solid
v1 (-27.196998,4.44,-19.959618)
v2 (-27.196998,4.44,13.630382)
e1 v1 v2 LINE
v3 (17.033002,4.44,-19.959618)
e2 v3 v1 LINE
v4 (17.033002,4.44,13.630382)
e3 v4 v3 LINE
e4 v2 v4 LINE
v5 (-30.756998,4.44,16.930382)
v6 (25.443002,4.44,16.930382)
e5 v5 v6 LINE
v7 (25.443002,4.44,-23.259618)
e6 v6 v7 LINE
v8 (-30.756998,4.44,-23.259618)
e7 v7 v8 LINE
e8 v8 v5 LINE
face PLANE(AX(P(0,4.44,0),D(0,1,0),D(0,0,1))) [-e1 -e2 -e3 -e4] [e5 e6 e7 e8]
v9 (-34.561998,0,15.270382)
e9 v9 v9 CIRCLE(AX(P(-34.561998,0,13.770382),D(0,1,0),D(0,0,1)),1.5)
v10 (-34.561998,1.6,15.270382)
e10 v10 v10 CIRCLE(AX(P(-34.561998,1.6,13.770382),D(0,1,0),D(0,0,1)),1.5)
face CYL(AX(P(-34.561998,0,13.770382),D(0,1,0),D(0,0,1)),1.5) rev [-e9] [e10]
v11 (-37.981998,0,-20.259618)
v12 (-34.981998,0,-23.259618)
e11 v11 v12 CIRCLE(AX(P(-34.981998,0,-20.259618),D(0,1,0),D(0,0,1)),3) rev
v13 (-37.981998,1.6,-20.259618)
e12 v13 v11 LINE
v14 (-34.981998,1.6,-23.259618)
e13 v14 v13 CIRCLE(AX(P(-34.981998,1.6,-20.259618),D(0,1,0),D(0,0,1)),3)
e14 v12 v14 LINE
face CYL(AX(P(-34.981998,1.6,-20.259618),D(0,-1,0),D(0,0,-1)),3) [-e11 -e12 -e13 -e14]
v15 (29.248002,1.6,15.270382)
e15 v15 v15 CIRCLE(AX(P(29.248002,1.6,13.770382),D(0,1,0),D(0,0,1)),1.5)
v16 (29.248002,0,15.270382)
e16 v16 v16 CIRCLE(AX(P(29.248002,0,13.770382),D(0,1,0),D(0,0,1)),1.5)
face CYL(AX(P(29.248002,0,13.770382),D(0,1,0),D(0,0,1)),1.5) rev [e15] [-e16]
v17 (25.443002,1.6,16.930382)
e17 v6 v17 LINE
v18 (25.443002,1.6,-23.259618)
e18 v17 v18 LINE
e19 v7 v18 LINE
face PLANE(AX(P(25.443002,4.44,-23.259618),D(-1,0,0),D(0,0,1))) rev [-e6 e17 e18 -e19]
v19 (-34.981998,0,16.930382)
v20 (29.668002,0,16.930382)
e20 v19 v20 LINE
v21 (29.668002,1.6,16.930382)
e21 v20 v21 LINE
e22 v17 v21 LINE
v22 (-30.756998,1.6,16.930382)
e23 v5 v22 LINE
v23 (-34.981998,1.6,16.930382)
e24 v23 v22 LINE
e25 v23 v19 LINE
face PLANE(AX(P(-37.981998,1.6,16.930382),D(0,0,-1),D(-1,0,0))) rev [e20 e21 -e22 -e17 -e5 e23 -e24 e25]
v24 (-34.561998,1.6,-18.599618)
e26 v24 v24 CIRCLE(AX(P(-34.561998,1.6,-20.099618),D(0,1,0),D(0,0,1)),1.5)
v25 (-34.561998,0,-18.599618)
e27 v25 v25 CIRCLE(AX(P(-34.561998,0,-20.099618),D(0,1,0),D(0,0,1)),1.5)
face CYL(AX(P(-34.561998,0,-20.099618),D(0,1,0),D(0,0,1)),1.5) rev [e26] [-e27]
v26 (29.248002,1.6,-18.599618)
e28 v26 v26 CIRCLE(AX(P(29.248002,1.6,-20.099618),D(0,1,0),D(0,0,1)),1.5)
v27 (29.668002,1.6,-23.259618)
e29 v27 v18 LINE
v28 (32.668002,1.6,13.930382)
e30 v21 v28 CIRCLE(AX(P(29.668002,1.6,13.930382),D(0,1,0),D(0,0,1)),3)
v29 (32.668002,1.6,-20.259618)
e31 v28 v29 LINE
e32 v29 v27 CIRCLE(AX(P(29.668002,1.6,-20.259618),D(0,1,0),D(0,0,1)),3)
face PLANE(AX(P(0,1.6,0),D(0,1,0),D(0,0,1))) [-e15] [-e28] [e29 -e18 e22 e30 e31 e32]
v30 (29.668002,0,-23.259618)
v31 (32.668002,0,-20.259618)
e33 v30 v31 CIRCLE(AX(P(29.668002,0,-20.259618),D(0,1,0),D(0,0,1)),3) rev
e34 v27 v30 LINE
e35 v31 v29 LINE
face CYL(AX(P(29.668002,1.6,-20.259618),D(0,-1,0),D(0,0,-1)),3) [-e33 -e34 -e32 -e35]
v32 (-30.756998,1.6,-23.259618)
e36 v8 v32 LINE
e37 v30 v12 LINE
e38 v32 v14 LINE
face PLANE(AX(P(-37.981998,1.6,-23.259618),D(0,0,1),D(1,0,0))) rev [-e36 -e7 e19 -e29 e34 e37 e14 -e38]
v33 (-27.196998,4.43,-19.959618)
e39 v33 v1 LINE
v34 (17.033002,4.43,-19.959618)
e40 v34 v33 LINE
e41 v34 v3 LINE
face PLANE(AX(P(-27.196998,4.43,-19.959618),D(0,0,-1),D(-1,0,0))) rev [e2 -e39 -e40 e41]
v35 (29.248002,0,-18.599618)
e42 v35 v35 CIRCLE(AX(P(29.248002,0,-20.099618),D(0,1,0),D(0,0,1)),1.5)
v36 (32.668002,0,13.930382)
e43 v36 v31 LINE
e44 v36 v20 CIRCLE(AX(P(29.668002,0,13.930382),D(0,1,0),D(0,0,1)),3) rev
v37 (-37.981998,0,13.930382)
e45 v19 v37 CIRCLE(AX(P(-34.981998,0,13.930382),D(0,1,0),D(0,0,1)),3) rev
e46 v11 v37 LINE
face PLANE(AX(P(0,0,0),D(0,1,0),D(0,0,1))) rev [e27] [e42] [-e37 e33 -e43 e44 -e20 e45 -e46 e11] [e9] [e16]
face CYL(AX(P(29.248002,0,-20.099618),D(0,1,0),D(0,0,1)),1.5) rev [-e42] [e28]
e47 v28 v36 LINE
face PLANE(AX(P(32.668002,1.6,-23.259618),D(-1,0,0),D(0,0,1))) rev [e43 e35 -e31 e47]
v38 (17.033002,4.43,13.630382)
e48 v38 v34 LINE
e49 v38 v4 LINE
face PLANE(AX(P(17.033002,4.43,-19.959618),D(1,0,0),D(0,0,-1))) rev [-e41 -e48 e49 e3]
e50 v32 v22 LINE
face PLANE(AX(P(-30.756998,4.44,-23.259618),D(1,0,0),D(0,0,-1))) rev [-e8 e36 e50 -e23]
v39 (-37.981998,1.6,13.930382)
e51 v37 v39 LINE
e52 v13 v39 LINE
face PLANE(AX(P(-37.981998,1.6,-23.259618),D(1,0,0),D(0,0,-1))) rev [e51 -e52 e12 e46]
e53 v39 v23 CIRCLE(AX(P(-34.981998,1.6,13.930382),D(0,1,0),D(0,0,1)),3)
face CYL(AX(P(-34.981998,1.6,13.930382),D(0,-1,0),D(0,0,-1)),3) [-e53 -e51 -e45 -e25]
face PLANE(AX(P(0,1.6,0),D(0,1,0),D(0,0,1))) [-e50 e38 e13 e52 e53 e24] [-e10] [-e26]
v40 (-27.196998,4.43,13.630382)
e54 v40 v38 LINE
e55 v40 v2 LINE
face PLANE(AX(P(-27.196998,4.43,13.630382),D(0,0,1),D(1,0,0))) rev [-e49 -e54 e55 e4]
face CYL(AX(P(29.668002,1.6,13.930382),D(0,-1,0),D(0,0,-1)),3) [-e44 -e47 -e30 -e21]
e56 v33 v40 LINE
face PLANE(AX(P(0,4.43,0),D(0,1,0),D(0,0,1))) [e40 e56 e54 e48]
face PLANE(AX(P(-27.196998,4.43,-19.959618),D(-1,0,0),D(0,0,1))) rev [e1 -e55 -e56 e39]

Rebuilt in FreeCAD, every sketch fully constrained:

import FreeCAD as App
import Part
import Sketcher

V = App.Vector
Q = App.Units.Quantity


def edges_at(feature, points):
    """Names of the edges that pass closest to the given points."""
    edges = feature.Shape.Edges
    near = lambda p: min(range(len(edges)), key=lambda i: edges[i].distToShape(Part.Vertex(*p))[0])
    return sorted({f"Edge{near(p) + 1}" for p in points})


def add_polygon(sketch, points):
    """Adds a closed chain of lines whose ends are joined by coincident constraints."""
    first, n = sketch.GeometryCount, len(points)
    for a, b in zip(points, points[1:] + points[:1]):
        sketch.addGeometry(Part.LineSegment(App.Vector(*a, 0), App.Vector(*b, 0)), False)
    for i in range(n):
        sketch.addConstraint(Sketcher.Constraint("Coincident", first + i, 2, first + (i + 1) % n, 1))

doc = App.newDocument("Part")
body = doc.addObject("PartDesign::Body", "Body")

sketch1 = body.newObject("Sketcher::SketchObject", "Sketch")
sketch1.AttachmentSupport = (doc.getObject("XZ_Plane"), [""])
sketch1.MapMode = "FlatFace"
add_polygon(sketch1, [(-38, -23), (-38, 17), (33, 17), (33, -23)])
sketch1.addConstraint([
    Sketcher.Constraint("Vertical", 0),
    Sketcher.Constraint("Horizontal", 1),
    Sketcher.Constraint("Vertical", 2),
    Sketcher.Constraint("Horizontal", 3),
    Sketcher.Constraint("DistanceX", 1, 1, 1, 2, Q("70.65 mm")),
    Sketcher.Constraint("DistanceY", 0, 1, 0, 2, Q("40.19 mm")),
    Sketcher.Constraint("DistanceX", 0, 2, -1, 1, Q("37.981998 mm")),
    Sketcher.Constraint("DistanceY", -1, 1, 0, 2, Q("16.930382 mm")),
])
pad1 = body.newObject("PartDesign::Pad", "Pad")
pad1.Profile = sketch1
pad1.Length = 1.6
pad1.Reversed = True
doc.recompute()

fillet = body.newObject("PartDesign::Fillet", "Fillet")
fillet.Base = (pad1, edges_at(pad1, [
    (-37.982, 0.8, -23.26),
    (32.668, 0.8, -23.26),
    (32.668, 0.8, 16.93),
    (-37.982, 0.8, 16.93),
]))
fillet.Radius = 3

sketch2 = body.newObject("Sketcher::SketchObject", "Sketch001")
sketch2.AttachmentSupport = (doc.getObject("XZ_Plane"), [""])
sketch2.MapMode = "FlatFace"
sketch2.AttachmentOffset = App.Placement(V(0, 0, -1.6), App.Rotation())
sketch2.addGeometry([
    Part.Circle(V(-34.6, -20.1, 0), V(0, 0, 1), 1.5),
    Part.Circle(V(29.2, -20.1, 0), V(0, 0, 1), 1.5),
    Part.Circle(V(-34.6, 13.8, 0), V(0, 0, 1), 1.5),
    Part.Circle(V(29.2, 13.8, 0), V(0, 0, 1), 1.5),
], False)
sketch2.addConstraint([
    Sketcher.Constraint("Equal", 0, 1),
    Sketcher.Constraint("Equal", 1, 2),
    Sketcher.Constraint("Equal", 2, 3),
    Sketcher.Constraint("Horizontal", 0, 3, 1, 3),
    Sketcher.Constraint("Horizontal", 2, 3, 3, 3),
    Sketcher.Constraint("Vertical", 0, 3, 2, 3),
    Sketcher.Constraint("Vertical", 1, 3, 3, 3),
    Sketcher.Constraint("Diameter", 0, Q("3 mm")),
    Sketcher.Constraint("DistanceX", 0, 3, 1, 3, Q("63.81 mm")),
    Sketcher.Constraint("DistanceY", 0, 3, 2, 3, Q("33.87 mm")),
    Sketcher.Constraint("DistanceX", 0, 3, -1, 1, Q("34.561998 mm")),
    Sketcher.Constraint("DistanceY", 0, 3, -1, 1, Q("20.099618 mm")),
])
pocket1 = body.newObject("PartDesign::Pocket", "Pocket")
pocket1.Profile = sketch2
pocket1.Length = 1.6
pocket1.Reversed = True

sketch3 = body.newObject("Sketcher::SketchObject", "Sketch002")
sketch3.AttachmentSupport = (doc.getObject("XZ_Plane"), [""])
sketch3.MapMode = "FlatFace"
sketch3.AttachmentOffset = App.Placement(V(0, 0, -1.6), App.Rotation())
add_polygon(sketch3, [(-31, -23), (-31, 17), (25, 17), (25, -23)])
sketch3.addConstraint([
    Sketcher.Constraint("Vertical", 0),
    Sketcher.Constraint("Horizontal", 1),
    Sketcher.Constraint("Vertical", 2),
    Sketcher.Constraint("Horizontal", 3),
    Sketcher.Constraint("DistanceX", 1, 1, 1, 2, Q("56.2 mm")),
    Sketcher.Constraint("DistanceY", 0, 1, 0, 2, Q("40.19 mm")),
    Sketcher.Constraint("DistanceX", 0, 2, -1, 1, Q("30.756998 mm")),
    Sketcher.Constraint("DistanceY", -1, 1, 0, 2, Q("16.930382 mm")),
])
pad2 = body.newObject("PartDesign::Pad", "Pad001")
pad2.Profile = sketch3
pad2.Length = 2.84
pad2.Reversed = True

sketch4 = body.newObject("Sketcher::SketchObject", "Sketch003")
sketch4.AttachmentSupport = (doc.getObject("XZ_Plane"), [""])
sketch4.MapMode = "FlatFace"
sketch4.AttachmentOffset = App.Placement(V(0, 0, -4.44), App.Rotation())
add_polygon(sketch4, [(-27, -20), (-27, 14), (17, 14), (17, -20)])
sketch4.addConstraint([
    Sketcher.Constraint("Vertical", 0),
    Sketcher.Constraint("Horizontal", 1),
    Sketcher.Constraint("Vertical", 2),
    Sketcher.Constraint("Horizontal", 3),
    Sketcher.Constraint("DistanceX", 1, 1, 1, 2, Q("44.23 mm")),
    Sketcher.Constraint("DistanceY", 0, 1, 0, 2, Q("33.59 mm")),
    Sketcher.Constraint("DistanceX", 0, 2, -1, 1, Q("27.196998 mm")),
    Sketcher.Constraint("DistanceY", -1, 1, 0, 2, Q("13.630382 mm")),
])
pocket2 = body.newObject("PartDesign::Pocket", "Pocket001")
pocket2.Profile = sketch4
pocket2.Length = 0.01
pocket2.Reversed = True

doc.recompute()
